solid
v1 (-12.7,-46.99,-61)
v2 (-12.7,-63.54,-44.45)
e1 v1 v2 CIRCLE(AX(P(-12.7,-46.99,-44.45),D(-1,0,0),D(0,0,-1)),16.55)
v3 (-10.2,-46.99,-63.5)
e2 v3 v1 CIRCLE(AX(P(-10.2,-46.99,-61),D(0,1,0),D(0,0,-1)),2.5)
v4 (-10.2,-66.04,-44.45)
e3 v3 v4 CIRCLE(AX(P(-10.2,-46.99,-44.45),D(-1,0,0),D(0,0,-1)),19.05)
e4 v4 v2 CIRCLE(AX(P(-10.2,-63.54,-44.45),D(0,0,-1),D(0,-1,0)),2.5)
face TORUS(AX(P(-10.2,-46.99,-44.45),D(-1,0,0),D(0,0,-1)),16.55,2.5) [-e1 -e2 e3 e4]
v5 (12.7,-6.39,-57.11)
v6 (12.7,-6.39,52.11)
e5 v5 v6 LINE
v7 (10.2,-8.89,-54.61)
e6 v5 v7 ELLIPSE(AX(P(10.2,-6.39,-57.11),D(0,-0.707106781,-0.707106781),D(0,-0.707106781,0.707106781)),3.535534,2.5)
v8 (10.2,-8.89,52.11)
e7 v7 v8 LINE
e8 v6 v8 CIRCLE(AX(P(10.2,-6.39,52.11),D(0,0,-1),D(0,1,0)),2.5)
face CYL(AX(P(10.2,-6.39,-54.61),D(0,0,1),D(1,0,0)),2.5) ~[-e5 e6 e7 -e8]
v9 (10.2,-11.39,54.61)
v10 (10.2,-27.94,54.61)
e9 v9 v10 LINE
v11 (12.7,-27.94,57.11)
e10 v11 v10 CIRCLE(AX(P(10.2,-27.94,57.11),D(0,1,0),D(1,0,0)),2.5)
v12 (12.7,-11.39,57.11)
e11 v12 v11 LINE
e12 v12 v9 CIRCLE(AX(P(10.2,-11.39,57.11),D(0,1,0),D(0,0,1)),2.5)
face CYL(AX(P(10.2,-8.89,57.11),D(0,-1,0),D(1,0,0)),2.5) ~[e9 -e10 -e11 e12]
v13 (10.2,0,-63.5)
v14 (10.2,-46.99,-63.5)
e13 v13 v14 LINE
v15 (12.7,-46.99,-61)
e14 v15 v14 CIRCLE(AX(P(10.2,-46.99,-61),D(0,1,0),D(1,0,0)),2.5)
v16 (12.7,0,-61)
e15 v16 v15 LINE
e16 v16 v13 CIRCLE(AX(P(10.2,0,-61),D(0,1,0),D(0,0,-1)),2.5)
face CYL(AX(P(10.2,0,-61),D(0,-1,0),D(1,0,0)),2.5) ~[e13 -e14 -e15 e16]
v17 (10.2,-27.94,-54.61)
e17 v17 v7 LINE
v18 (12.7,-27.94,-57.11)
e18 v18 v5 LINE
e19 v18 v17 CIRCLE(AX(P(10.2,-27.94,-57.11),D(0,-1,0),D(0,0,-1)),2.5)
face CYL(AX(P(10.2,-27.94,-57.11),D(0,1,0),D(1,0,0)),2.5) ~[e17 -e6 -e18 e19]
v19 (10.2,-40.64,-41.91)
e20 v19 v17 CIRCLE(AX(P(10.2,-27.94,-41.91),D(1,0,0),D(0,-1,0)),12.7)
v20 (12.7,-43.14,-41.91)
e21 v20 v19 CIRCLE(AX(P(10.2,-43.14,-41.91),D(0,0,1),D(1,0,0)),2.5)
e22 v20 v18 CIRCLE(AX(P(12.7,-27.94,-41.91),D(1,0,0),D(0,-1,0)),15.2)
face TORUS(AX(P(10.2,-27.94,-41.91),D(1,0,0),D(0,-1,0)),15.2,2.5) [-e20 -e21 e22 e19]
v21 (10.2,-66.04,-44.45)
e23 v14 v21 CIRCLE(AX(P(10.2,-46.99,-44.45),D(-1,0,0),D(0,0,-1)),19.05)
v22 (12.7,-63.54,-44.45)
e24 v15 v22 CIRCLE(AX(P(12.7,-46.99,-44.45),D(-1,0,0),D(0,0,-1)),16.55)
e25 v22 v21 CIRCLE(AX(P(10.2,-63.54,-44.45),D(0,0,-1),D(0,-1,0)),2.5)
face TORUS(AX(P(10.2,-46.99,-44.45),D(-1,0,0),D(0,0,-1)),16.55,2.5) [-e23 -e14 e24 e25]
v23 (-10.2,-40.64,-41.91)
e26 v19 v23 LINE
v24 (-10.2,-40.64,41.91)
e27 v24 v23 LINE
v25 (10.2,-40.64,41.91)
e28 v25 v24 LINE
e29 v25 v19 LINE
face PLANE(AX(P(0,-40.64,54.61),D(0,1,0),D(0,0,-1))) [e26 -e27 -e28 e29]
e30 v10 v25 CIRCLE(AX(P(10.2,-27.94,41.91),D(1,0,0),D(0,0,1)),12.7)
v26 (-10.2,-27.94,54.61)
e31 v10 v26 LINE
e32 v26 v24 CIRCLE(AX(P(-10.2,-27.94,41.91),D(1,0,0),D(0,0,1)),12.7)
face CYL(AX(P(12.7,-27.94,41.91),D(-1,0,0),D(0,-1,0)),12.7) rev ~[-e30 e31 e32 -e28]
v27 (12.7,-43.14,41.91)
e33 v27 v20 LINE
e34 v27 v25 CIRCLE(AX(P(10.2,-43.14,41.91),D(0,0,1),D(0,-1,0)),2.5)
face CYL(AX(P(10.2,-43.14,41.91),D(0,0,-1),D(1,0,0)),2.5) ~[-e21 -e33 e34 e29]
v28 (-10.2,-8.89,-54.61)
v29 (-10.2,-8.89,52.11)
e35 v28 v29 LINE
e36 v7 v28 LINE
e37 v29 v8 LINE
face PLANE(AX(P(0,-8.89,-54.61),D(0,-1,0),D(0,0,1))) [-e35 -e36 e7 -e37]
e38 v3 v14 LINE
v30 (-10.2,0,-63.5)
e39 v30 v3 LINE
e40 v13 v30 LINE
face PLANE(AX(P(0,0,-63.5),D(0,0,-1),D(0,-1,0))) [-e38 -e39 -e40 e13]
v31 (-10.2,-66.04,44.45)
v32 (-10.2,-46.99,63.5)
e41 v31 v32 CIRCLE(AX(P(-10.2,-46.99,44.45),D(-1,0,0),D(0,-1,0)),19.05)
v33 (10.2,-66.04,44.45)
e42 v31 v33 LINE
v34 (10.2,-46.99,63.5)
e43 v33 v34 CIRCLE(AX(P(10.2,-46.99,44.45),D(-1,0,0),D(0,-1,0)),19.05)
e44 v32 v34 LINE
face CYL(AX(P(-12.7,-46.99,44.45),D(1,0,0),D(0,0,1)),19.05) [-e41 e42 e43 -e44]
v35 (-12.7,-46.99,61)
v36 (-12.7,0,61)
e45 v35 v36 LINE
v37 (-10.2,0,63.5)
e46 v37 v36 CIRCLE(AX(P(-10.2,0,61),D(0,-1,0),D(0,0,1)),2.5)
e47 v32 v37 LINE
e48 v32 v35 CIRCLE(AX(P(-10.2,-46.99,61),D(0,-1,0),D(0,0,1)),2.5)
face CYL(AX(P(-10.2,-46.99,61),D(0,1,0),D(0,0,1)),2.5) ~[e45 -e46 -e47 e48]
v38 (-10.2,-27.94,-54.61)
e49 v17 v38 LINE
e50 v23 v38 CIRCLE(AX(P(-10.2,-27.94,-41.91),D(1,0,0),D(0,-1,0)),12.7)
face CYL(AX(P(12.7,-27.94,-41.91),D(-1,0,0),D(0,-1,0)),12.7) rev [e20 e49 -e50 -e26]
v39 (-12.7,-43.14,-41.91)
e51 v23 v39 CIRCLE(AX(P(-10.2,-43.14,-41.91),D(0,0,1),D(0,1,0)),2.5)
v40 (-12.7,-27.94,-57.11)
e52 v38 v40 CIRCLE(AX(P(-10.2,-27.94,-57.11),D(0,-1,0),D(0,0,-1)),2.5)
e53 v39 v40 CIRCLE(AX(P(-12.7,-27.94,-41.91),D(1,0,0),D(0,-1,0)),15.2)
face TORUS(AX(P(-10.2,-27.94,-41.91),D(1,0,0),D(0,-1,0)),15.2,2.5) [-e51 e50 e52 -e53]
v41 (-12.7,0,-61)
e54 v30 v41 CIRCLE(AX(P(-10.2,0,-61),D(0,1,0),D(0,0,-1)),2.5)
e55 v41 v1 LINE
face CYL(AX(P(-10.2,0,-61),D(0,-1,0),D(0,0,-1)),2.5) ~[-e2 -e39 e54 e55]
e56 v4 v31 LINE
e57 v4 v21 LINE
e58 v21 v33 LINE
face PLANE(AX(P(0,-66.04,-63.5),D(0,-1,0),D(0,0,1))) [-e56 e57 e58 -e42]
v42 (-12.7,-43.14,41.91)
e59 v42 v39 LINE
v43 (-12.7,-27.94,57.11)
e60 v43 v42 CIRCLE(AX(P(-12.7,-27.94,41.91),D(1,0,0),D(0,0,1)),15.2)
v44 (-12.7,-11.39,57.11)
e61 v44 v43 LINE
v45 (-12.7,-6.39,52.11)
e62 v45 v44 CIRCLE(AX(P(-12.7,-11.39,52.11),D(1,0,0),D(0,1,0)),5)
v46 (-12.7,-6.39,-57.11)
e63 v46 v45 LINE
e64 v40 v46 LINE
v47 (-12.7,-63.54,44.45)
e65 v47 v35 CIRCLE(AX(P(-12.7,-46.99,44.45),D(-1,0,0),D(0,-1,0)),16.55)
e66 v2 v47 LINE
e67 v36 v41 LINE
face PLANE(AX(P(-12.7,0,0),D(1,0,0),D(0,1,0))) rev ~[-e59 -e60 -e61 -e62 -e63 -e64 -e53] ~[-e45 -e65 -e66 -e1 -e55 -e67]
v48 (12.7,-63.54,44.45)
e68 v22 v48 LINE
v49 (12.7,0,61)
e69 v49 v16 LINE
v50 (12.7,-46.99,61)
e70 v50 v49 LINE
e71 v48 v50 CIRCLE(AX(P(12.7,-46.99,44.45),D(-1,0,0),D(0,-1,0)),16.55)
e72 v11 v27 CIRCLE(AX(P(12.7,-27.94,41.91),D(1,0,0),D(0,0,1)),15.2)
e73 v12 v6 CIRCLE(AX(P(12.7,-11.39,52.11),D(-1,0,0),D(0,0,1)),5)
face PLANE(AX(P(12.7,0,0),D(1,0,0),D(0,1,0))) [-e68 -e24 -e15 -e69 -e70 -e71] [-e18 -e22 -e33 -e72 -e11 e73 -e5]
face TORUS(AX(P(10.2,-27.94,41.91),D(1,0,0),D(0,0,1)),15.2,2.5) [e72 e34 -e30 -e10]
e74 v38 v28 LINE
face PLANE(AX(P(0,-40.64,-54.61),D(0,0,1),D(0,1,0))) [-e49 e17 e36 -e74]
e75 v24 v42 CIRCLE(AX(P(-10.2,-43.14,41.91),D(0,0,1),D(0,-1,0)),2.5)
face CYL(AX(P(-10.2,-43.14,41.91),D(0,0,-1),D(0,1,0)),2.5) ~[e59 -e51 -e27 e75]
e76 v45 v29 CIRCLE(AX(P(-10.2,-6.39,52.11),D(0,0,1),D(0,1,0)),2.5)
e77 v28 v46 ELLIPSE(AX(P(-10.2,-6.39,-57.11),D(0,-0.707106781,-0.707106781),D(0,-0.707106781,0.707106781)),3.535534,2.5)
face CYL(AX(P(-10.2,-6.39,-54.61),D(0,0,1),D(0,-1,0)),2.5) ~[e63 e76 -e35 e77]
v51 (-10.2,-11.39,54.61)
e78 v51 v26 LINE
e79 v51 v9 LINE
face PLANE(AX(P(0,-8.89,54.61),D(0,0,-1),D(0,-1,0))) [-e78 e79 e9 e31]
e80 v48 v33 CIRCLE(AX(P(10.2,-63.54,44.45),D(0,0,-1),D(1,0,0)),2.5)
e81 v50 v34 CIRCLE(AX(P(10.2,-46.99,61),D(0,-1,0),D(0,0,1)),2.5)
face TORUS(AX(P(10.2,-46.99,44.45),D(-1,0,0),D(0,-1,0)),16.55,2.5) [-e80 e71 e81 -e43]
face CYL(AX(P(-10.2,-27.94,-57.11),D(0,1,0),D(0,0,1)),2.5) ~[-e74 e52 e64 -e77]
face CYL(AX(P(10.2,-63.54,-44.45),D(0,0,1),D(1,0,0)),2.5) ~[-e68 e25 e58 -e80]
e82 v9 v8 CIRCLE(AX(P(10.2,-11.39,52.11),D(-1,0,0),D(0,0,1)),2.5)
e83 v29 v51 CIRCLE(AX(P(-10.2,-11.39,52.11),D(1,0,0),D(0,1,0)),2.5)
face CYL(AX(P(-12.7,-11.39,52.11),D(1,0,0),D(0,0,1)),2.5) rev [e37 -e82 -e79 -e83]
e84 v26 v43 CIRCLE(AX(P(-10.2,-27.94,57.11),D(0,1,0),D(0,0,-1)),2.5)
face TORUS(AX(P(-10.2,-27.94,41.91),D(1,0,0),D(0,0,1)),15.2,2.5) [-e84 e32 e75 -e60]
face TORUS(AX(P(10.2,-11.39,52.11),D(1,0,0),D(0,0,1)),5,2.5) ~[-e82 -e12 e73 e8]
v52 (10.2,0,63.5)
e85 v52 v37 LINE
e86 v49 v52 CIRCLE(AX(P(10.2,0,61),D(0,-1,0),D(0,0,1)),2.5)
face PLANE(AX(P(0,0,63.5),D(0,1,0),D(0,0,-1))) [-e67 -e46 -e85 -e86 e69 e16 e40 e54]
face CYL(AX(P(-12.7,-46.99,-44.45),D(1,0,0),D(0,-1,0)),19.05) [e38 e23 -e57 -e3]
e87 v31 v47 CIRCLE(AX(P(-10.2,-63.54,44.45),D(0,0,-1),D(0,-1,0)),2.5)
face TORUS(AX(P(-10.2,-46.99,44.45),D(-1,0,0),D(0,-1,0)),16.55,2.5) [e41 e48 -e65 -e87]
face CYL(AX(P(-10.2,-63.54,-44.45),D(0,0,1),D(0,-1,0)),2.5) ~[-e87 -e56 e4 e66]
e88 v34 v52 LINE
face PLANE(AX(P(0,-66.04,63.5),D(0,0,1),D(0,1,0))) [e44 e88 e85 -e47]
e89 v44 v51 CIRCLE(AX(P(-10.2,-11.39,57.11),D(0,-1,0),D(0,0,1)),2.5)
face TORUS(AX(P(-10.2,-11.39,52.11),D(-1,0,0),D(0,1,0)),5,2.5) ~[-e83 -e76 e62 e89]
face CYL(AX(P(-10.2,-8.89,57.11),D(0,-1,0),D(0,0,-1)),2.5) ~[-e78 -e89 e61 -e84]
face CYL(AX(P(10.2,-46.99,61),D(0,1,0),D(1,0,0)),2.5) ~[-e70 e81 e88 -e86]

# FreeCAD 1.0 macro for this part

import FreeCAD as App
import Part
import Sketcher

V = App.Vector
Q = App.Units.Quantity


def edges_at(feature, points):
    """Names of the edges that pass closest to the given points."""
    edges = feature.Shape.Edges
    near = lambda p: min(range(len(edges)), key=lambda i: edges[i].distToShape(Part.Vertex(*p))[0])
    return sorted({f"Edge{near(p) + 1}" for p in points})


def add_polygon(sketch, points):
    """Adds a closed chain of lines whose ends are joined by coincident constraints."""
    first, n = sketch.GeometryCount, len(points)
    for a, b in zip(points, points[1:] + points[:1]):
        sketch.addGeometry(Part.LineSegment(App.Vector(*a, 0), App.Vector(*b, 0)), False)
    for i in range(n):
        sketch.addConstraint(Sketcher.Constraint("Coincident", first + i, 2, first + (i + 1) % n, 1))

doc = App.newDocument("Part")
body = doc.addObject("PartDesign::Body", "Body")

# Sketch on YZ plane
sketch1 = body.newObject("Sketcher::SketchObject", "Sketch")
sketch1.AttachmentSupport = (doc.getObject("YZ_Plane"), [""])
sketch1.MapMode = "FlatFace"
add_polygon(sketch1, [(0, 64), (-66, 64), (-66, -64), (0, -64)])  # lines 0-3
add_polygon(sketch1, [(-41, 55), (-9, 55), (-9, -55), (-41, -55)])  # lines 4-7
sketch1.addConstraint([
    Sketcher.Constraint("Horizontal", 0),
    Sketcher.Constraint("Vertical", 1),
    Sketcher.Constraint("Horizontal", 2),
    Sketcher.Constraint("Vertical", 3),
    Sketcher.Constraint("Horizontal", 4),
    Sketcher.Constraint("Vertical", 5),
    Sketcher.Constraint("Horizontal", 6),
    Sketcher.Constraint("Vertical", 7),
    Sketcher.Constraint("Symmetric", 2, 2, 3, 2, -1, 1),
    Sketcher.Constraint("DistanceY", 1, 2, 1, 1, Q("5 in")),
    Sketcher.Constraint("DistanceX", 1, 2, 6, 2, Q("1 in")),
    Sketcher.Constraint("DistanceX", 4, 1, 4, 2, Q("1.25 in")),
    Sketcher.Constraint("DistanceX", 4, 2, -1, 1, Q("0.35 in")),
    Sketcher.Constraint("DistanceY", 4, 2, 3, 2, Q("0.35 in")),
    Sketcher.Constraint("DistanceY", 2, 2, 5, 2, Q("0.35 in")),
])
pad1 = body.newObject("PartDesign::Pad", "Pad")
pad1.Profile = sketch1
pad1.Length = Q("1 in")
pad1.Midplane = True
doc.recompute()

fillet = body.newObject("PartDesign::Fillet", "Fillet")
fillet.Base = (pad1, edges_at(pad1, [(0, -40.64, -54.61)]))
fillet.Radius = Q("0.5 in")
doc.recompute()

fillet2 = body.newObject("PartDesign::Fillet", "Fillet001")
fillet2.Base = (fillet, edges_at(fillet, [(0, -40.64, 54.61)]))
fillet2.Radius = Q("0.5 in")
doc.recompute()

fillet3 = body.newObject("PartDesign::Fillet", "Fillet002")
fillet3.Base = (fillet2, edges_at(fillet2, [(0, -66.04, 63.5)]))
fillet3.Radius = Q("0.75 in")
doc.recompute()

fillet4 = body.newObject("PartDesign::Fillet", "Fillet003")
fillet4.Base = (fillet3, edges_at(fillet3, [(0, -66.04, -63.5)]))
fillet4.Radius = Q("0.75 in")
doc.recompute()

fillet5 = body.newObject("PartDesign::Fillet", "Fillet004")
fillet5.Base = (fillet4, edges_at(fillet4, [
    (12.7, -8.89, 0),
    (0, -8.89, 54.61),
    (12.7, -18.415, -54.61),
    (12.7, -36.92, -50.89),
    (12.7, -40.64, 0),
    (12.7, -36.92, 50.89),
    (12.7, -18.415, 54.61),
    (-12.7, -8.89, 0),
    (-12.7, -18.415, 54.61),
    (-12.7, -36.92, 50.89),
    (-12.7, -40.64, 0),
    (-12.7, -36.92, -50.89),
    (-12.7, -18.415, -54.61),
    (12.7, -23.495, 63.5),
    (12.7, -60.46, 57.92),
    (12.7, -66.04, 0),
    (12.7, -60.46, -57.92),
    (12.7, -23.495, -63.5),
    (-12.7, -23.495, 63.5),
    (-12.7, -60.46, 57.92),
    (-12.7, -66.04, 0),
    (-12.7, -60.46, -57.92),
    (-12.7, -23.495, -63.5),
]))
fillet5.Radius = 2.5

doc.recompute()
